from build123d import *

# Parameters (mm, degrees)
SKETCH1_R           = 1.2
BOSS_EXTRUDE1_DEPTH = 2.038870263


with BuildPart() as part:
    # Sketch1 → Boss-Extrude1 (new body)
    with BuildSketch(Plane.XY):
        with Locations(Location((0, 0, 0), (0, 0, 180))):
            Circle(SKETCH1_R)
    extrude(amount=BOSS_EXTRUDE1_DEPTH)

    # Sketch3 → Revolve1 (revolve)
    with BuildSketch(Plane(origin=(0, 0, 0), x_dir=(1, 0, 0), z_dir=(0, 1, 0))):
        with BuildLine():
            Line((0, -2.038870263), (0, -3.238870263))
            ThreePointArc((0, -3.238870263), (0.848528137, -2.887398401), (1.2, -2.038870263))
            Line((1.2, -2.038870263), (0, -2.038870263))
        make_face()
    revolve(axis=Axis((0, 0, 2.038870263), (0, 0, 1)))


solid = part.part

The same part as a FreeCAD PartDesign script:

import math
import FreeCAD as App
import Part
import Sketcher

V = App.Vector

doc = App.newDocument("Part")
body = doc.addObject("PartDesign::Body", "Body")

sketch1 = body.newObject("Sketcher::SketchObject", "Sketch")
sketch1.AttachmentSupport = (doc.getObject("XY_Plane"), [""])
sketch1.MapMode = "FlatFace"
sketch1.addGeometry(Part.Circle(V(0, 0, 0), V(0, 0, 1), 1.2), False)
sketch1.addConstraint(Sketcher.Constraint("Coincident", 0, 3, -1, 1))
sketch1.addConstraint(Sketcher.Constraint("Diameter", 0, 2.4))
pad1 = body.newObject("PartDesign::Pad", "Pad")
pad1.Profile = sketch1
pad1.Length = 2.03887

sketch2 = body.newObject("Sketcher::SketchObject", "Sketch001")
sketch2.AttachmentSupport = (doc.getObject("XZ_Plane"), [""])
sketch2.MapMode = "FlatFace"
sketch2.addGeometry(Part.LineSegment(V(0, 2, 0), V(0, 3.2, 0)), False)
sketch2.addGeometry(Part.ArcOfCircle(Part.Circle(V(0, 2, 0), V(0, 0, 1), 1.2), math.radians(0), math.radians(90)), False)
sketch2.addGeometry(Part.LineSegment(V(1.2, 2, 0), V(0, 2, 0)), False)
sketch2.addConstraint(Sketcher.Constraint("Coincident", 0, 2, 1, 2))
sketch2.addConstraint(Sketcher.Constraint("Coincident", 1, 1, 2, 1))
sketch2.addConstraint(Sketcher.Constraint("Coincident", 2, 2, 0, 1))
sketch2.addConstraint(Sketcher.Constraint("Vertical", 0))
sketch2.addConstraint(Sketcher.Constraint("Horizontal", 2))
sketch2.addConstraint(Sketcher.Constraint("Coincident", 2, 2, 1, 3))
sketch2.addConstraint(Sketcher.Constraint("PointOnObject", 1, 3, -2))
sketch2.addConstraint(Sketcher.Constraint("Radius", 1, 1.2))
sketch2.addConstraint(Sketcher.Constraint("DistanceY", -1, 1, 1, 3, 2.03887))
revolution = body.newObject("PartDesign::Revolution", "Revolution")
revolution.Profile = sketch2
revolution.ReferenceAxis = (sketch2, ["V_Axis"])
revolution.Angle = 360

doc.recompute()
